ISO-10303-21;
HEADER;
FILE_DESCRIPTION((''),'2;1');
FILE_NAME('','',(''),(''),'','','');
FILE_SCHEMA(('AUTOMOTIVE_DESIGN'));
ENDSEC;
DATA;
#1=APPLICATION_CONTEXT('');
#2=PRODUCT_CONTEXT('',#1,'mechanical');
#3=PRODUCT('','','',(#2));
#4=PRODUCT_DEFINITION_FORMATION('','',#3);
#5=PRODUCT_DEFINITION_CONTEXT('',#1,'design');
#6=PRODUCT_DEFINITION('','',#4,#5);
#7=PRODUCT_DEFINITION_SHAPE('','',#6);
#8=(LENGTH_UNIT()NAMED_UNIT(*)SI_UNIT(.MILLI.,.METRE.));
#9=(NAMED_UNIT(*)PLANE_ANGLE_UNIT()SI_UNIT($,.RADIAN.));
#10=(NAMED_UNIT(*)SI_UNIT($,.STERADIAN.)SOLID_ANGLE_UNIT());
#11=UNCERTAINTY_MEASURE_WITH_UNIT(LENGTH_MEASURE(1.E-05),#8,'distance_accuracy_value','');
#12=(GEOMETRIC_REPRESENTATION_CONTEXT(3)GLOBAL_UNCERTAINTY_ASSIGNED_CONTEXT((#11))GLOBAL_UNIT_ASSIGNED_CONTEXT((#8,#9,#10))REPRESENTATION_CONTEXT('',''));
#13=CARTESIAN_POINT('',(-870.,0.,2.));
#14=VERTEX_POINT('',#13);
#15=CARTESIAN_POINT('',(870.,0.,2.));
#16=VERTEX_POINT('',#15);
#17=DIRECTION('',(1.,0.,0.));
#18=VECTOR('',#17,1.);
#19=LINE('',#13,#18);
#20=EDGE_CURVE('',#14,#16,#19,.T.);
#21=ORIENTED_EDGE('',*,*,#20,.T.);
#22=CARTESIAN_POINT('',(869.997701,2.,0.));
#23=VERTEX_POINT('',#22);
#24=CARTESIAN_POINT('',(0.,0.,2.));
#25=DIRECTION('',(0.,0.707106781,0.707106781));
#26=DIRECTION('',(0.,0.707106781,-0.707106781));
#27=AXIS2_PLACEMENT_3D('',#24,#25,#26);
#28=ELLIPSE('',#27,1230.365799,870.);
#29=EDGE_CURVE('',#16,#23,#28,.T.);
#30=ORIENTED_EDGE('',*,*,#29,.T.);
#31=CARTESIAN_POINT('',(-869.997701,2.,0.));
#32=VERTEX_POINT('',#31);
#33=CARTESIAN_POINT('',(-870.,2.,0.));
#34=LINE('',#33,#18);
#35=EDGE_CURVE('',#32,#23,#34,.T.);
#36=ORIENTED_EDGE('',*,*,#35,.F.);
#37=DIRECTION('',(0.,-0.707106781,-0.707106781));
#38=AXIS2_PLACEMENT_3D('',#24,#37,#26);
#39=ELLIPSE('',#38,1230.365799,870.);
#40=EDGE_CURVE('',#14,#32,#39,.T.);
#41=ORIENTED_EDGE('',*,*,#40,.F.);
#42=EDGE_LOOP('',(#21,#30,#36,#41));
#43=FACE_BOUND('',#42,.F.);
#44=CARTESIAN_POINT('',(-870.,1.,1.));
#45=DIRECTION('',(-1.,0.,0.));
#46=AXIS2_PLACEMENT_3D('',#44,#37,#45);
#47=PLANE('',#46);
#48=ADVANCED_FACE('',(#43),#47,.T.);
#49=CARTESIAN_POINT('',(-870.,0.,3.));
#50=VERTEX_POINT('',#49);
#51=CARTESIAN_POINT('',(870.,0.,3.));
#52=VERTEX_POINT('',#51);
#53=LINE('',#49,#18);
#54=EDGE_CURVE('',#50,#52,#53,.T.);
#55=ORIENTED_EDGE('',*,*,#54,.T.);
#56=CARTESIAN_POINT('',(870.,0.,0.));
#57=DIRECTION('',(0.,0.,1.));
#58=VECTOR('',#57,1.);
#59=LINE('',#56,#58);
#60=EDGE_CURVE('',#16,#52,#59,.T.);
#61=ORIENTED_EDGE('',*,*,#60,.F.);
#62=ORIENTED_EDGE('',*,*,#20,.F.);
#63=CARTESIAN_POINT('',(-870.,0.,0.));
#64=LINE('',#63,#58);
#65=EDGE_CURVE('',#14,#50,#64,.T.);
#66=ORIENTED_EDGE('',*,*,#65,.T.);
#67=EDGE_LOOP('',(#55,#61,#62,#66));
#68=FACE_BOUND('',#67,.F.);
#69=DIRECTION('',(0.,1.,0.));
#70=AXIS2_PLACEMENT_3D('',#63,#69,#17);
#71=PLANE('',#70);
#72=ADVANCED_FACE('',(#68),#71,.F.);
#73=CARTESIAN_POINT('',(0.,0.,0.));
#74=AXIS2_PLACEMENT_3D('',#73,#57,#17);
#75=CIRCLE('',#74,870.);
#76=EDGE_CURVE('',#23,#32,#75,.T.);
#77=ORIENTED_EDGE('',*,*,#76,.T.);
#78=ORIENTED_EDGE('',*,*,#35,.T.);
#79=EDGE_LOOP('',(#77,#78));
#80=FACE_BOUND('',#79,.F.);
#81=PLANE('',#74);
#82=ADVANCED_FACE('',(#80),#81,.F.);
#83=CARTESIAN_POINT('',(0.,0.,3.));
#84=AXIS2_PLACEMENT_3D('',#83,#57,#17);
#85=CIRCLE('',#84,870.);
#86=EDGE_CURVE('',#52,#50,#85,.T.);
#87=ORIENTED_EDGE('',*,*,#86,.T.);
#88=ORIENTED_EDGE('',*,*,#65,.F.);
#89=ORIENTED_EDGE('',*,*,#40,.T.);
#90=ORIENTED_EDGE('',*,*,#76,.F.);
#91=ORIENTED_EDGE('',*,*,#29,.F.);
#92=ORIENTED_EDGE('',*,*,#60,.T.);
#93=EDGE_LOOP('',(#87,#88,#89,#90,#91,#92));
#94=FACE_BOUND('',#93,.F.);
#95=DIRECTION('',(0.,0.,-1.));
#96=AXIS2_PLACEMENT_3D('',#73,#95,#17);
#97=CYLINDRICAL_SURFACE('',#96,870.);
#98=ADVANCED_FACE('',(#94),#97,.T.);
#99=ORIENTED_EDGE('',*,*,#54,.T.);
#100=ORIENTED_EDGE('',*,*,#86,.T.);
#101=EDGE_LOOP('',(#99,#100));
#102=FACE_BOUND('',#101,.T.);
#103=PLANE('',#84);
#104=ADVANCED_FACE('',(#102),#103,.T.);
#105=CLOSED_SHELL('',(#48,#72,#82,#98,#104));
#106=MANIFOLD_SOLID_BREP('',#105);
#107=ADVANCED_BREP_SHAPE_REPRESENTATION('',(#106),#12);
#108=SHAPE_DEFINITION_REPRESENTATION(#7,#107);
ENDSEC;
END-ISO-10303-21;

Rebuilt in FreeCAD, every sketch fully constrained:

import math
import FreeCAD as App
import Part
import Sketcher
from FreeCAD import Vector


def edges_at(feature, points):
    """Names of the edges that pass closest to the given points."""
    edges = feature.Shape.Edges
    near = lambda p: min(range(len(edges)), key=lambda i: edges[i].distToShape(Part.Vertex(*p))[0])
    return sorted({f"Edge{near(p) + 1}" for p in points})

doc = App.newDocument("Part")
body = doc.addObject("PartDesign::Body", "Body")

# Sketch on XY plane
sketch1 = body.newObject("Sketcher::SketchObject", "Sketch")
sketch1.AttachmentSupport = (doc.getObject("XY_Plane"), [""])
sketch1.MapMode = "FlatFace"
sketch1.addGeometry([
    Part.LineSegment(Vector(-870, 0, 0), Vector(870, 0, 0)),
    Part.ArcOfCircle(Part.Circle(Vector(0, 0, 0), Vector(0, 0, 1), 870), math.radians(0), math.radians(180)),
], False)
sketch1.addConstraint([
    Sketcher.Constraint("Coincident", 0, 1, 1, 2),
    Sketcher.Constraint("Coincident", 1, 1, 0, 2),
    Sketcher.Constraint("Horizontal", 0),
    Sketcher.Constraint("Coincident", 1, 3, -1, 1),
    Sketcher.Constraint("PointOnObject", 0, 1, -1),
    Sketcher.Constraint("Radius", 1, 870.0),
])
pad1 = body.newObject("PartDesign::Pad", "Pad")
pad1.Profile = sketch1
pad1.Length = 3
doc.recompute()

chamfer = body.newObject("PartDesign::Chamfer", "Chamfer")
chamfer.Base = (pad1, edges_at(pad1, [(0, 0, 0)]))
chamfer.Size = 2

doc.recompute()
